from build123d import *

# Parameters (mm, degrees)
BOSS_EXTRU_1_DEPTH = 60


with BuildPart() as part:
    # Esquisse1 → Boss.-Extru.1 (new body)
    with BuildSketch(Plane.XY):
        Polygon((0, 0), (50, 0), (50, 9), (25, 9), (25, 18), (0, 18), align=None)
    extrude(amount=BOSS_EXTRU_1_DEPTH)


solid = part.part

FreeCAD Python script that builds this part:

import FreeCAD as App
import Part
import Sketcher

doc = App.newDocument("Part")
params = doc.addObject("Spreadsheet::Sheet", "Params")
for row, (alias, value) in enumerate([
    ("sketch1_width", "50 mm"),
    ("sketch1_height", "9 mm"),
    ("pad1_length", "60 mm"),
], start=1):
    params.set(f"A{row}", alias)
    params.set(f"B{row}", "=" + value)
    params.setAlias(f"B{row}", alias)

body = doc.addObject("PartDesign::Body", "Body")

# Sketch on XY plane
sketch1 = body.newObject("Sketcher::SketchObject", "Sketch")
sketch1.AttachmentSupport = (doc.getObject("XY_Plane"), [""])
sketch1.MapMode = "FlatFace"
sketch1.addGeometry([
    Part.LineSegment(App.Vector(0, 0, 0), App.Vector(50, 0, 0)),  # 0
    Part.LineSegment(App.Vector(50, 0, 0), App.Vector(50, 9, 0)),  # 1
    Part.LineSegment(App.Vector(50, 9, 0), App.Vector(25, 9, 0)),  # 2
    Part.LineSegment(App.Vector(25, 9, 0), App.Vector(25, 18, 0)),  # 3
    Part.LineSegment(App.Vector(25, 18, 0), App.Vector(0, 18, 0)),  # 4
    Part.LineSegment(App.Vector(0, 18, 0), App.Vector(0, 0, 0)),  # 5
], False)
sketch1.addConstraint([
    Sketcher.Constraint("Coincident", 0, 2, 1, 1),
    Sketcher.Constraint("Coincident", 1, 2, 2, 1),
    Sketcher.Constraint("Coincident", 2, 2, 3, 1),
    Sketcher.Constraint("Coincident", 3, 2, 4, 1),
    Sketcher.Constraint("Coincident", 4, 2, 5, 1),
    Sketcher.Constraint("Coincident", 5, 2, 0, 1),
    Sketcher.Constraint("Horizontal", 0),
    Sketcher.Constraint("Vertical", 1),
    Sketcher.Constraint("Horizontal", 2),
    Sketcher.Constraint("Vertical", 3),
    Sketcher.Constraint("Horizontal", 4),
    Sketcher.Constraint("Vertical", 5),
    Sketcher.Constraint("Coincident", 5, 2, -1, 1),
    Sketcher.Constraint("Equal", 2, 4),
    Sketcher.Constraint("Equal", 1, 3),
    Sketcher.Constraint("DistanceX", 0, 1, 0, 2, 50.0),
    Sketcher.Constraint("DistanceY", 1, 1, 1, 2, 9.0),
])
sketch1.setExpression("Constraints[15]", "Params.sketch1_width")
sketch1.setExpression("Constraints[16]", "Params.sketch1_height")
pad1 = body.newObject("PartDesign::Pad", "Pad")
pad1.Profile = sketch1
pad1.setExpression("Length", "Params.pad1_length")

doc.recompute()
